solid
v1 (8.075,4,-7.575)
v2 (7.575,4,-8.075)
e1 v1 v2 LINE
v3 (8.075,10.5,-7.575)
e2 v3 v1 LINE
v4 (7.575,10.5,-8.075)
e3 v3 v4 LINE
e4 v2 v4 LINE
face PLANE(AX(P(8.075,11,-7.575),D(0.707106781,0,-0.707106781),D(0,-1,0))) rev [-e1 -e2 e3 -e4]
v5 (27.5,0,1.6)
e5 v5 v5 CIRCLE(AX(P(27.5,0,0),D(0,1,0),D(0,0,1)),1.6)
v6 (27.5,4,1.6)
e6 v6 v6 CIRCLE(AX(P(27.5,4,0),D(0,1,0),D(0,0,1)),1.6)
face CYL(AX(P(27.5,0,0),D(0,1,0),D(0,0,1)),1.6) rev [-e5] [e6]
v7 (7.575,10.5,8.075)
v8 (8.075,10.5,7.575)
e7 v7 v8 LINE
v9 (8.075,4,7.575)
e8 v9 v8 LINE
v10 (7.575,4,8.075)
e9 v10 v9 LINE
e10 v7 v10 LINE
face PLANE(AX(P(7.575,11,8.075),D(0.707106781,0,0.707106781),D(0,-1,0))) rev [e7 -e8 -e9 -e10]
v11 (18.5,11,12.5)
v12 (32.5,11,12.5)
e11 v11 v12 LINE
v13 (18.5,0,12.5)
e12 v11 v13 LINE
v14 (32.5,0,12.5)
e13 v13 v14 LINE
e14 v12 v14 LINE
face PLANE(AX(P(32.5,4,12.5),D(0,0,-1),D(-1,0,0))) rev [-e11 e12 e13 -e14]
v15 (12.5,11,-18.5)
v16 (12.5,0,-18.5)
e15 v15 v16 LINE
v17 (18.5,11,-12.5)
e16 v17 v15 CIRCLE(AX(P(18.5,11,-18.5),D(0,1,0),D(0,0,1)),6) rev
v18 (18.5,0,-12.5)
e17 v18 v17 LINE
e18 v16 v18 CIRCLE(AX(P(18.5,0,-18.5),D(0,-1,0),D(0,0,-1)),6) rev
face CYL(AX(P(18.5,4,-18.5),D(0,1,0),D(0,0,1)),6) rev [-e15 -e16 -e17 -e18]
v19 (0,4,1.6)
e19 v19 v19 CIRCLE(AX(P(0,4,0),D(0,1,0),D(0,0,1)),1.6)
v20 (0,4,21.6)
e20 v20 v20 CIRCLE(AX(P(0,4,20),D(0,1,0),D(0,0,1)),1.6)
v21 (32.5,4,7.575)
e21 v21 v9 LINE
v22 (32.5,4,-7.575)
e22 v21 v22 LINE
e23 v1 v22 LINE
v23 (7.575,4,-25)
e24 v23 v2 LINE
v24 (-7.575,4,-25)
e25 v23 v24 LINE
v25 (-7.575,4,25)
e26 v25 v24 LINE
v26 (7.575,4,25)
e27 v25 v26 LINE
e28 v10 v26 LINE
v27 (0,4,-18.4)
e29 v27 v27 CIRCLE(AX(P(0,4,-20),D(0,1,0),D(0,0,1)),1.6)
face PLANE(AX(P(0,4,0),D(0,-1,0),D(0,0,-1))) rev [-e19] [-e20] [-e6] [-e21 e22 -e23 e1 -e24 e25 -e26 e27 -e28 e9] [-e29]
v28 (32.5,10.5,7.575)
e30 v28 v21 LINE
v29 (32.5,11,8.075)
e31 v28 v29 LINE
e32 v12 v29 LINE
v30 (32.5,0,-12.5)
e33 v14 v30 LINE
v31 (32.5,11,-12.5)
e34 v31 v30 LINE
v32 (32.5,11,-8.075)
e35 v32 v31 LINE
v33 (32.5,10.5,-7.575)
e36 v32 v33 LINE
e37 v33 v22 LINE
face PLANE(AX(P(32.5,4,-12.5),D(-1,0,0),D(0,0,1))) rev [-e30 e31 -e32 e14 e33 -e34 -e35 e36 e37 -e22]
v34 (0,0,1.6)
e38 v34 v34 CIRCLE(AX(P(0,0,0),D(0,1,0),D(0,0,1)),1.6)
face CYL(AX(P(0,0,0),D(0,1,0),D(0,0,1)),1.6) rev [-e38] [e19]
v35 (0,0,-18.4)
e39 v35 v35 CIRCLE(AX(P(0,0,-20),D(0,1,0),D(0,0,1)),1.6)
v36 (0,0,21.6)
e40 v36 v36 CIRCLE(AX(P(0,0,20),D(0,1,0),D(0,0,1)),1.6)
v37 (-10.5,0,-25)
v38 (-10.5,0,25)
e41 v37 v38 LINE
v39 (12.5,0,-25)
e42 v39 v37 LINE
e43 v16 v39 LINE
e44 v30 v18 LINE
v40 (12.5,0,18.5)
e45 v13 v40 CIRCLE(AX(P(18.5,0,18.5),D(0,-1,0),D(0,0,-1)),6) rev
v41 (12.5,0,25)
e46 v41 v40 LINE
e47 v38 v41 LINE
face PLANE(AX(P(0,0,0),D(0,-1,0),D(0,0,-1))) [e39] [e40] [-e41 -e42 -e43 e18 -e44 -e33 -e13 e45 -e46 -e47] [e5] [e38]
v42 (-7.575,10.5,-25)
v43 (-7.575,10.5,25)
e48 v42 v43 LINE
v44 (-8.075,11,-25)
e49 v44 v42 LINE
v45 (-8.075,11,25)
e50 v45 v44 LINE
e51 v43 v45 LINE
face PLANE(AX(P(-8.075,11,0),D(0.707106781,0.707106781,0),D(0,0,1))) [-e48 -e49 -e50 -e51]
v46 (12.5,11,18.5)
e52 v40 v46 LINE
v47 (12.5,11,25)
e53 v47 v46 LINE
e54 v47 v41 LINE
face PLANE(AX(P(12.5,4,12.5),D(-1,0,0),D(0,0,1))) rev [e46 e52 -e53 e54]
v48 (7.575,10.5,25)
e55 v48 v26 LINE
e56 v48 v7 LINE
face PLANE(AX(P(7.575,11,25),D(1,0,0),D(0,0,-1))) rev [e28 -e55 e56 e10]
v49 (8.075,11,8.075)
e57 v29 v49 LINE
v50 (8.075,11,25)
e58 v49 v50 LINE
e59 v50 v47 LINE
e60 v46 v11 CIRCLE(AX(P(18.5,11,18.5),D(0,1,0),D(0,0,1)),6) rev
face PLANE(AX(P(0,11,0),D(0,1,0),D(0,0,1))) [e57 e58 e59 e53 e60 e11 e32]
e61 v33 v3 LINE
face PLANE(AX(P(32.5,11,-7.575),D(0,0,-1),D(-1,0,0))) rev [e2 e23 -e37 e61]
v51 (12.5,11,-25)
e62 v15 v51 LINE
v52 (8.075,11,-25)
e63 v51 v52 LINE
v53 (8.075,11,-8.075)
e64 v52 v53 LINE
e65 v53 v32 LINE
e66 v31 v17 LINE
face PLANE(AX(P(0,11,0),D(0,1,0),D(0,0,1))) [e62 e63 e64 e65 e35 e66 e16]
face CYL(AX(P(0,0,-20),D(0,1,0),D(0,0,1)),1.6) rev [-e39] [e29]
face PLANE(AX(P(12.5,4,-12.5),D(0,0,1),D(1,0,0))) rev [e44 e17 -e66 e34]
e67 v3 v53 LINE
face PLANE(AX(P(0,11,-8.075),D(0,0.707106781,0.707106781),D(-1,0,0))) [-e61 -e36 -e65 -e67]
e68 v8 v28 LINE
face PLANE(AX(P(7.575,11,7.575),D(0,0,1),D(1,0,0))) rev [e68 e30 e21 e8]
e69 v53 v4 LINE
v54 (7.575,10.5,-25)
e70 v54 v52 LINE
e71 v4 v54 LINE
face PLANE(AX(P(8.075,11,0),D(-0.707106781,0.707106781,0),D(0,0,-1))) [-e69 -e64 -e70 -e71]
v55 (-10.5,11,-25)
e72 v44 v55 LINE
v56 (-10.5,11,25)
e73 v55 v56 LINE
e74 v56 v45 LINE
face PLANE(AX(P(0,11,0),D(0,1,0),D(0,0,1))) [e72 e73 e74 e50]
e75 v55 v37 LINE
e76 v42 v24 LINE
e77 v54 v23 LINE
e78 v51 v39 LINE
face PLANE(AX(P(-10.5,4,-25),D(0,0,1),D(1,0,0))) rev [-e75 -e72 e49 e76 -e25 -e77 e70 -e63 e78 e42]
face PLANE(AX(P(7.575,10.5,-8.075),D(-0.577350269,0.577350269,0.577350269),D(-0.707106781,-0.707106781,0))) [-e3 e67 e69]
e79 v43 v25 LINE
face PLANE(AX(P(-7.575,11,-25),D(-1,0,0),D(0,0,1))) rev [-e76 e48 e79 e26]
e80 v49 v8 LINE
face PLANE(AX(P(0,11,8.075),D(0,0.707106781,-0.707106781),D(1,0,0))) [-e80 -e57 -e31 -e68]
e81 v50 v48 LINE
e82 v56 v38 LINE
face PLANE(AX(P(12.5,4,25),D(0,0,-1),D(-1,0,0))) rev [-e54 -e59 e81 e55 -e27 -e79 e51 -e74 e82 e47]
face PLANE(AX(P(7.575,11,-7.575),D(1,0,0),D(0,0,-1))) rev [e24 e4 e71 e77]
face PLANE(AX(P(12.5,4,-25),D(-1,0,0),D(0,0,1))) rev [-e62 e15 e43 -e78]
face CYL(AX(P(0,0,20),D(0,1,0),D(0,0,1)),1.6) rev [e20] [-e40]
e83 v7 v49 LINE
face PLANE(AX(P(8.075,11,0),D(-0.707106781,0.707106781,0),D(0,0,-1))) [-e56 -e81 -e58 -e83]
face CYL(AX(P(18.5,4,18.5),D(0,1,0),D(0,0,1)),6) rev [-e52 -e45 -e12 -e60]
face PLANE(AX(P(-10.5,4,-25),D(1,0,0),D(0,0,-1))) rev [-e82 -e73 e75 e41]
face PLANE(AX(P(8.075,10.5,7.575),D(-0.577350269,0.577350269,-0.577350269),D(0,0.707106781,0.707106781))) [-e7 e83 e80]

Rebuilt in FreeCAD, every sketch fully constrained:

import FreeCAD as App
import Part
import Sketcher


def edges_at(feature, points):
    """Names of the edges that pass closest to the given points."""
    edges = feature.Shape.Edges
    near = lambda p: min(range(len(edges)), key=lambda i: edges[i].distToShape(Part.Vertex(*p))[0])
    return sorted({f"Edge{near(p) + 1}" for p in points})

doc = App.newDocument("Part")
body = doc.addObject("PartDesign::Body", "Body")

sketch1 = body.newObject("Sketcher::SketchObject", "Sketch")
sketch1.AttachmentSupport = (doc.getObject("XZ_Plane"), [""])
sketch1.MapMode = "FlatFace"
sketch1.addGeometry([
    Part.LineSegment(App.Vector(12.5, -25, 0), App.Vector(-10.5, -25, 0)),
    Part.LineSegment(App.Vector(-10.5, -25, 0), App.Vector(-10.5, 25, 0)),
    Part.LineSegment(App.Vector(-10.5, 25, 0), App.Vector(12.5, 25, 0)),
    Part.LineSegment(App.Vector(12.5, 25, 0), App.Vector(12.5, 12.5, 0)),
    Part.LineSegment(App.Vector(12.5, 12.5, 0), App.Vector(32.5, 12.5, 0)),
    Part.LineSegment(App.Vector(32.5, 12.5, 0), App.Vector(32.5, -12.5, 0)),
    Part.LineSegment(App.Vector(32.5, -12.5, 0), App.Vector(12.5, -12.5, 0)),
    Part.LineSegment(App.Vector(12.5, -12.5, 0), App.Vector(12.5, -25, 0)),
], False)
sketch1.addConstraint([
    Sketcher.Constraint("Coincident", 0, 2, 1, 1),
    Sketcher.Constraint("Coincident", 1, 2, 2, 1),
    Sketcher.Constraint("Coincident", 2, 2, 3, 1),
    Sketcher.Constraint("Coincident", 3, 2, 4, 1),
    Sketcher.Constraint("Coincident", 4, 2, 5, 1),
    Sketcher.Constraint("Coincident", 5, 2, 6, 1),
    Sketcher.Constraint("Coincident", 6, 2, 7, 1),
    Sketcher.Constraint("Coincident", 7, 2, 0, 1),
    Sketcher.Constraint("Horizontal", 0),
    Sketcher.Constraint("Vertical", 1),
    Sketcher.Constraint("Horizontal", 2),
    Sketcher.Constraint("Vertical", 3),
    Sketcher.Constraint("Horizontal", 4),
    Sketcher.Constraint("Vertical", 5),
    Sketcher.Constraint("Horizontal", 6),
    Sketcher.Constraint("Vertical", 7),
    Sketcher.Constraint("Symmetric", 3, 2, 6, 2, -1),
    Sketcher.Constraint("Equal", 3, 7),
    Sketcher.Constraint("DistanceX", 0, 2, 0, 1, 23.0),
    Sketcher.Constraint("DistanceX", 4, 1, 4, 2, 20.0),
    Sketcher.Constraint("DistanceY", 1, 1, 1, 2, 50.0),
    Sketcher.Constraint("DistanceY", 5, 2, 5, 1, 25.0),
    Sketcher.Constraint("DistanceX", 0, 2, -1, 1, 10.5),
])
pad1 = body.newObject("PartDesign::Pad", "Pad")
pad1.Profile = sketch1
pad1.Length = 4
pad1.Reversed = True

sketch2 = body.newObject("Sketcher::SketchObject", "Sketch001")
sketch2.AttachmentSupport = (doc.getObject("XZ_Plane"), [""])
sketch2.MapMode = "FlatFace"
sketch2.AttachmentOffset = App.Placement(App.Vector(0, 0, -4), App.Rotation())
sketch2.addGeometry([
    Part.LineSegment(App.Vector(7.575, 7.575, 0), App.Vector(7.575, 25, 0)),
    Part.LineSegment(App.Vector(7.575, 25, 0), App.Vector(12.5, 25, 0)),
    Part.LineSegment(App.Vector(12.5, 25, 0), App.Vector(12.5, 12.5, 0)),
    Part.LineSegment(App.Vector(12.5, 12.5, 0), App.Vector(32.5, 12.5, 0)),
    Part.LineSegment(App.Vector(32.5, 12.5, 0), App.Vector(32.5, 7.575, 0)),
    Part.LineSegment(App.Vector(32.5, 7.575, 0), App.Vector(7.575, 7.575, 0)),
    Part.LineSegment(App.Vector(7.575, -7.575, 0), App.Vector(32.5, -7.575, 0)),
    Part.LineSegment(App.Vector(32.5, -7.575, 0), App.Vector(32.5, -12.5, 0)),
    Part.LineSegment(App.Vector(32.5, -12.5, 0), App.Vector(12.5, -12.5, 0)),
    Part.LineSegment(App.Vector(12.5, -12.5, 0), App.Vector(12.5, -25, 0)),
    Part.LineSegment(App.Vector(12.5, -25, 0), App.Vector(7.575, -25, 0)),
    Part.LineSegment(App.Vector(7.575, -25, 0), App.Vector(7.575, -7.575, 0)),
    Part.LineSegment(App.Vector(-10.5, -25, 0), App.Vector(-10.5, 25, 0)),
    Part.LineSegment(App.Vector(-10.5, 25, 0), App.Vector(-7.575, 25, 0)),
    Part.LineSegment(App.Vector(-7.575, 25, 0), App.Vector(-7.575, -25, 0)),
    Part.LineSegment(App.Vector(-7.575, -25, 0), App.Vector(-10.5, -25, 0)),
], False)
sketch2.addConstraint([
    Sketcher.Constraint("Coincident", 0, 2, 1, 1),
    Sketcher.Constraint("Coincident", 1, 2, 2, 1),
    Sketcher.Constraint("Coincident", 2, 2, 3, 1),
    Sketcher.Constraint("Coincident", 3, 2, 4, 1),
    Sketcher.Constraint("Coincident", 4, 2, 5, 1),
    Sketcher.Constraint("Coincident", 5, 2, 0, 1),
    Sketcher.Constraint("Coincident", 6, 2, 7, 1),
    Sketcher.Constraint("Coincident", 7, 2, 8, 1),
    Sketcher.Constraint("Coincident", 8, 2, 9, 1),
    Sketcher.Constraint("Coincident", 9, 2, 10, 1),
    Sketcher.Constraint("Coincident", 10, 2, 11, 1),
    Sketcher.Constraint("Coincident", 11, 2, 6, 1),
    Sketcher.Constraint("Coincident", 12, 2, 13, 1),
    Sketcher.Constraint("Coincident", 13, 2, 14, 1),
    Sketcher.Constraint("Coincident", 14, 2, 15, 1),
    Sketcher.Constraint("Coincident", 15, 2, 12, 1),
    Sketcher.Constraint("Vertical", 0),
    Sketcher.Constraint("Horizontal", 1),
    Sketcher.Constraint("Vertical", 2),
    Sketcher.Constraint("Horizontal", 3),
    Sketcher.Constraint("Vertical", 4),
    Sketcher.Constraint("Horizontal", 5),
    Sketcher.Constraint("Horizontal", 6),
    Sketcher.Constraint("Vertical", 7),
    Sketcher.Constraint("Horizontal", 8),
    Sketcher.Constraint("Vertical", 9),
    Sketcher.Constraint("Horizontal", 10),
    Sketcher.Constraint("Vertical", 11),
    Sketcher.Constraint("Vertical", 12),
    Sketcher.Constraint("Horizontal", 13),
    Sketcher.Constraint("Vertical", 14),
    Sketcher.Constraint("Horizontal", 15),
    Sketcher.Constraint("Symmetric", 10, 2, 13, 2, -1, 1),
    Sketcher.Constraint("Symmetric", 0, 2, 14, 2, -1, 1),
    Sketcher.Constraint("Symmetric", 4, 2, 6, 2, -1),
    Sketcher.Constraint("Symmetric", 2, 2, 8, 2, -1),
    Sketcher.Constraint("Horizontal", 1, 2, 12, 2),
    Sketcher.Constraint("Equal", 10, 4),
    Sketcher.Constraint("DistanceX", 3, 1, 3, 2, 20.0),
    Sketcher.Constraint("DistanceY", 12, 1, 12, 2, 50.0),
    Sketcher.Constraint("DistanceY", 2, 2, 2, 1, 12.5),
    Sketcher.Constraint("DistanceX", 12, 2, 1, 2, 23.0),
    Sketcher.Constraint("DistanceX", -1, 1, 1, 2, 12.5),
    Sketcher.Constraint("DistanceX", 1, 1, 1, 2, 4.925),
])
pad2 = body.newObject("PartDesign::Pad", "Pad001")
pad2.Profile = sketch2
pad2.Length = 7
pad2.Reversed = True

sketch3 = body.newObject("Sketcher::SketchObject", "Sketch002")
sketch3.AttachmentSupport = (doc.getObject("XZ_Plane"), [""])
sketch3.MapMode = "FlatFace"
sketch3.AttachmentOffset = App.Placement(App.Vector(0, 0, -4), App.Rotation())
sketch3.addGeometry([
    Part.Circle(App.Vector(0, 0, 0), App.Vector(0, 0, 1), 1.6),
    Part.Circle(App.Vector(0, -20, 0), App.Vector(0, 0, 1), 1.6),
    Part.Circle(App.Vector(0, 20, 0), App.Vector(0, 0, 1), 1.6),
    Part.Circle(App.Vector(27.5, 0, 0), App.Vector(0, 0, 1), 1.6),
], False)
sketch3.addConstraint([
    Sketcher.Constraint("Coincident", 0, 3, -1, 1),
    Sketcher.Constraint("Equal", 0, 1),
    Sketcher.Constraint("Equal", 1, 2),
    Sketcher.Constraint("Equal", 2, 3),
    Sketcher.Constraint("Symmetric", 1, 3, 2, 3, -1, 1),
    Sketcher.Constraint("PointOnObject", 1, 3, -2),
    Sketcher.Constraint("PointOnObject", 3, 3, -1),
    Sketcher.Constraint("Diameter", 0, 3.2),
    Sketcher.Constraint("DistanceY", 1, 3, -1, 1, 20.0),
    Sketcher.Constraint("DistanceX", -1, 1, 3, 3, 27.5),
])
pocket1 = body.newObject("PartDesign::Pocket", "Pocket")
pocket1.Profile = sketch3
pocket1.Type = "ThroughAll"
pocket1.Reversed = True
doc.recompute()

chamfer = body.newObject("PartDesign::Chamfer", "Chamfer")
chamfer.Base = (pocket1, edges_at(pocket1, [
    (7.575, 7.5, 7.575),
    (20.038, 11, 7.575),
    (7.575, 11, 16.288),
    (7.575, 7.5, -7.575),
    (7.575, 11, -16.288),
    (20.038, 11, -7.575),
    (-7.575, 11, 0),
]))
chamfer.Size = 0.5
doc.recompute()

fillet = body.newObject("PartDesign::Fillet", "Fillet")
fillet.Base = (chamfer, edges_at(chamfer, [(12.5, 5.5, 12.5), (12.5, 5.5, -12.5)]))
fillet.Radius = 6

doc.recompute()
